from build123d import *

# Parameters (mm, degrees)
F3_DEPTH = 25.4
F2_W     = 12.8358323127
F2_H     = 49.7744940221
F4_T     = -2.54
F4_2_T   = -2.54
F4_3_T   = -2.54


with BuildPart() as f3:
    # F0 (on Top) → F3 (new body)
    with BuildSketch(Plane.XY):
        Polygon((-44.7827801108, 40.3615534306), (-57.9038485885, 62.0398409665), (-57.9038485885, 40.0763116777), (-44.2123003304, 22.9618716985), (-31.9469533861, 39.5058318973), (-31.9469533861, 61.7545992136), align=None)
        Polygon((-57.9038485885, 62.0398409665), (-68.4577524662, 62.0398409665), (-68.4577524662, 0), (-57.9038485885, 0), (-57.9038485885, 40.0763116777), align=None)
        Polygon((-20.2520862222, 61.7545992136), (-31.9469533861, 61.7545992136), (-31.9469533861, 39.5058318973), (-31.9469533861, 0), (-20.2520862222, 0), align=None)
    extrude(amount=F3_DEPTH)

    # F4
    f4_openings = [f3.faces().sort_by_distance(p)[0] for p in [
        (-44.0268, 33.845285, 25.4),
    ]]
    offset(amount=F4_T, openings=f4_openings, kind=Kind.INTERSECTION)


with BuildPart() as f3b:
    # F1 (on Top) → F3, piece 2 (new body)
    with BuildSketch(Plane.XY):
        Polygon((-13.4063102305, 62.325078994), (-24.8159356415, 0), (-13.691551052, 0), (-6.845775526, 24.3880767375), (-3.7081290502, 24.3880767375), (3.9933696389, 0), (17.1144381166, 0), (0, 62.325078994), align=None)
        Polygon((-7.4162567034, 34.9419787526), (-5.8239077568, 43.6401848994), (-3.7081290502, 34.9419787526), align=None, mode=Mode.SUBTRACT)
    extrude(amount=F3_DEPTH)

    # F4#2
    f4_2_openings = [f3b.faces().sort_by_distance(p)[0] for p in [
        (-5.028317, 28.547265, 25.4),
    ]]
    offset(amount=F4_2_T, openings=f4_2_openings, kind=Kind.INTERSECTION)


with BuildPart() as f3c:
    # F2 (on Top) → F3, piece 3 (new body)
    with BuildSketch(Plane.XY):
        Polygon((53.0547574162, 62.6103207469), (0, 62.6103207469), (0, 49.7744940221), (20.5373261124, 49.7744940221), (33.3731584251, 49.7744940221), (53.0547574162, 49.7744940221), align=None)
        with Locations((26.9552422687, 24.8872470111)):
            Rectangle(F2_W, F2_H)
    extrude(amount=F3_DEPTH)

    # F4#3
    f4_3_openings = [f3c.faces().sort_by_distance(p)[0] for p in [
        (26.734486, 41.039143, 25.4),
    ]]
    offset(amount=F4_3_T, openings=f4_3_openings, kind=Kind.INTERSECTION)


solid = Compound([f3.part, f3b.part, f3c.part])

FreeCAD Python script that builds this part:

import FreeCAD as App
import Part
import Sketcher
from FreeCAD import Vector
Q = App.Units.Quantity


def faces_at(feature, points):
    """Names of the faces that lie closest to the given points."""
    faces = feature.Shape.Faces
    near = lambda p: min(range(len(faces)), key=lambda i: faces[i].distToShape(Part.Vertex(*p))[0])
    return sorted({f"Face{near(p) + 1}" for p in points})

doc = App.newDocument("Part")
body = doc.addObject("PartDesign::Body", "Body")

# Sketch on XY plane
sketch1 = doc.addObject("Sketcher::SketchObject", "Sketch")
body.addObject(sketch1)
sketch1.AttachmentSupport = (doc.XY_Plane, [""])
sketch1.MapMode = "FlatFace"
sketch1.addGeometry(Part.LineSegment(Vector(-44.78278, 40.361553, 0), Vector(-57.903849, 62.039841, 0)), False)
sketch1.addGeometry(Part.LineSegment(Vector(-57.903849, 62.039841, 0), Vector(-68.457752, 62.039841, 0)), False)
sketch1.addGeometry(Part.LineSegment(Vector(-68.457752, 62.039841, 0), Vector(-68.457752, 0, 0)), False)
sketch1.addGeometry(Part.LineSegment(Vector(-68.457752, 0, 0), Vector(-57.903849, 0, 0)), False)
sketch1.addGeometry(Part.LineSegment(Vector(-57.903849, 0, 0), Vector(-57.903849, 40.076312, 0)), False)
sketch1.addGeometry(Part.LineSegment(Vector(-57.903849, 40.076312, 0), Vector(-44.2123, 22.961872, 0)), False)
sketch1.addGeometry(Part.LineSegment(Vector(-44.2123, 22.961872, 0), Vector(-31.946953, 39.505832, 0)), False)
sketch1.addGeometry(Part.LineSegment(Vector(-31.946953, 39.505832, 0), Vector(-31.946953, 0, 0)), False)
sketch1.addGeometry(Part.LineSegment(Vector(-31.946953, 0, 0), Vector(-20.252086, 0, 0)), False)
sketch1.addGeometry(Part.LineSegment(Vector(-20.252086, 0, 0), Vector(-20.252086, 61.754599, 0)), False)
sketch1.addGeometry(Part.LineSegment(Vector(-20.252086, 61.754599, 0), Vector(-31.946953, 61.754599, 0)), False)
sketch1.addGeometry(Part.LineSegment(Vector(-31.946953, 61.754599, 0), Vector(-44.78278, 40.361553, 0)), False)
sketch1.addConstraint(Sketcher.Constraint("Coincident", 0, 2, 1, 1))
sketch1.addConstraint(Sketcher.Constraint("Coincident", 1, 2, 2, 1))
sketch1.addConstraint(Sketcher.Constraint("Coincident", 2, 2, 3, 1))
sketch1.addConstraint(Sketcher.Constraint("Coincident", 3, 2, 4, 1))
sketch1.addConstraint(Sketcher.Constraint("Coincident", 4, 2, 5, 1))
sketch1.addConstraint(Sketcher.Constraint("Coincident", 5, 2, 6, 1))
sketch1.addConstraint(Sketcher.Constraint("Coincident", 6, 2, 7, 1))
sketch1.addConstraint(Sketcher.Constraint("Coincident", 7, 2, 8, 1))
sketch1.addConstraint(Sketcher.Constraint("Coincident", 8, 2, 9, 1))
sketch1.addConstraint(Sketcher.Constraint("Coincident", 9, 2, 10, 1))
sketch1.addConstraint(Sketcher.Constraint("Coincident", 10, 2, 11, 1))
sketch1.addConstraint(Sketcher.Constraint("Coincident", 11, 2, 0, 1))
sketch1.addConstraint(Sketcher.Constraint("Horizontal", 1))
sketch1.addConstraint(Sketcher.Constraint("Vertical", 2))
sketch1.addConstraint(Sketcher.Constraint("Horizontal", 3))
sketch1.addConstraint(Sketcher.Constraint("Vertical", 4))
sketch1.addConstraint(Sketcher.Constraint("Vertical", 7))
sketch1.addConstraint(Sketcher.Constraint("Horizontal", 8))
sketch1.addConstraint(Sketcher.Constraint("Vertical", 9))
sketch1.addConstraint(Sketcher.Constraint("Horizontal", 10))
sketch1.addConstraint(Sketcher.Constraint("PointOnObject", 2, 2, -1))
sketch1.addConstraint(Sketcher.Constraint("PointOnObject", 7, 2, -1))
sketch1.addConstraint(Sketcher.Constraint("Vertical", 0, 2, 3, 2))
sketch1.addConstraint(Sketcher.Constraint("Vertical", 7, 2, 10, 2))
sketch1.addConstraint(Sketcher.Constraint("DistanceY", 9, 1, 9, 2, 61.754599))
sketch1.addConstraint(Sketcher.Constraint("Distance", 0, 25.339901))
sketch1.addConstraint(Sketcher.Constraint("DistanceY", 2, 2, 2, 1, 62.039841))
sketch1.addConstraint(Sketcher.Constraint("DistanceY", 4, 1, 4, 2, 40.076312))
sketch1.addConstraint(Sketcher.Constraint("DistanceY", 7, 2, 7, 1, 39.505832))
sketch1.addConstraint(Sketcher.Constraint("DistanceX", 5, 2, -1, 1, 44.2123))
sketch1.addConstraint(Sketcher.Constraint("DistanceX", 1, 2, 6, 2, 36.510799))
sketch1.addConstraint(Sketcher.Constraint("DistanceX", 1, 2, 1, 1, 10.553904))
sketch1.addConstraint(Sketcher.Constraint("DistanceX", 8, 1, 8, 2, 11.694867))
sketch1.addConstraint(Sketcher.Constraint("DistanceX", 0, 2, -1, 1, 57.903849))
sketch1.addConstraint(Sketcher.Constraint("DistanceY", -1, 1, 5, 2, 22.961872))
sketch1.addConstraint(Sketcher.Constraint("DistanceX", 11, 2, -1, 1, 44.78278))
pad1 = doc.addObject("PartDesign::Pad", "Pad")
body.addObject(pad1)
pad1.Profile = sketch1
pad1.Length = Q("1 in")
doc.recompute()

thickness = doc.addObject("PartDesign::Thickness", "Thickness")
body.addObject(thickness)
thickness.Base = (pad1, faces_at(pad1, [(-44.355, 31.02, 25.4)]))
thickness.Value = Q("0.1 in")
thickness.Reversed = True
thickness.Join = "Intersection"
body2 = doc.addObject("PartDesign::Body", "Body001")

# Sketch on XY plane
sketch2 = doc.addObject("Sketcher::SketchObject", "Sketch001")
body2.addObject(sketch2)
sketch2.AttachmentSupport = (doc.getObject("XY_Plane001"), [""])
sketch2.MapMode = "FlatFace"
sketch2.addGeometry(Part.LineSegment(Vector(-13.40631, 62.325079, 0), Vector(-24.815936, 0, 0)), False)
sketch2.addGeometry(Part.LineSegment(Vector(-24.815936, 0, 0), Vector(-13.691551, 0, 0)), False)
sketch2.addGeometry(Part.LineSegment(Vector(-13.691551, 0, 0), Vector(-6.845776, 24.388077, 0)), False)
sketch2.addGeometry(Part.LineSegment(Vector(-6.845776, 24.388077, 0), Vector(-3.708129, 24.388077, 0)), False)
sketch2.addGeometry(Part.LineSegment(Vector(-3.708129, 24.388077, 0), Vector(3.99337, 0, 0)), False)
sketch2.addGeometry(Part.LineSegment(Vector(3.99337, 0, 0), Vector(17.114438, 0, 0)), False)
sketch2.addGeometry(Part.LineSegment(Vector(17.114438, 0, 0), Vector(0, 62.325079, 0)), False)
sketch2.addGeometry(Part.LineSegment(Vector(0, 62.325079, 0), Vector(-13.40631, 62.325079, 0)), False)
sketch2.addGeometry(Part.LineSegment(Vector(-3.708129, 34.941979, 0), Vector(-7.416257, 34.941979, 0)), False)
sketch2.addGeometry(Part.LineSegment(Vector(-7.416257, 34.941979, 0), Vector(-5.823908, 43.640185, 0)), False)
sketch2.addGeometry(Part.LineSegment(Vector(-5.823908, 43.640185, 0), Vector(-3.708129, 34.941979, 0)), False)
sketch2.addConstraint(Sketcher.Constraint("Coincident", 0, 2, 1, 1))
sketch2.addConstraint(Sketcher.Constraint("Coincident", 1, 2, 2, 1))
sketch2.addConstraint(Sketcher.Constraint("Coincident", 2, 2, 3, 1))
sketch2.addConstraint(Sketcher.Constraint("Coincident", 3, 2, 4, 1))
sketch2.addConstraint(Sketcher.Constraint("Coincident", 4, 2, 5, 1))
sketch2.addConstraint(Sketcher.Constraint("Coincident", 5, 2, 6, 1))
sketch2.addConstraint(Sketcher.Constraint("Coincident", 6, 2, 7, 1))
sketch2.addConstraint(Sketcher.Constraint("Coincident", 7, 2, 0, 1))
sketch2.addConstraint(Sketcher.Constraint("Coincident", 8, 2, 9, 1))
sketch2.addConstraint(Sketcher.Constraint("Coincident", 9, 2, 10, 1))
sketch2.addConstraint(Sketcher.Constraint("Coincident", 10, 2, 8, 1))
sketch2.addConstraint(Sketcher.Constraint("Horizontal", 1))
sketch2.addConstraint(Sketcher.Constraint("Horizontal", 3))
sketch2.addConstraint(Sketcher.Constraint("Horizontal", 5))
sketch2.addConstraint(Sketcher.Constraint("Horizontal", 7))
sketch2.addConstraint(Sketcher.Constraint("Horizontal", 8))
sketch2.addConstraint(Sketcher.Constraint("PointOnObject", 0, 2, -1))
sketch2.addConstraint(Sketcher.Constraint("PointOnObject", 4, 2, -1))
sketch2.addConstraint(Sketcher.Constraint("PointOnObject", 6, 2, -2))
sketch2.addConstraint(Sketcher.Constraint("Parallel", 0, 9))
sketch2.addConstraint(Sketcher.Constraint("Vertical", 3, 2, 10, 2))
sketch2.addConstraint(Sketcher.Constraint("DistanceX", 5, 1, 5, 2, 13.121068))
sketch2.addConstraint(Sketcher.Constraint("DistanceX", 7, 2, 7, 1, 13.40631))
sketch2.addConstraint(Sketcher.Constraint("DistanceX", 3, 2, 4, 2, 7.701499))
sketch2.addConstraint(Sketcher.Constraint("DistanceY", 8, 2, 7, 2, 27.3831))
sketch2.addConstraint(Sketcher.Constraint("Distance", 0, 63.360832))
sketch2.addConstraint(Sketcher.Constraint("Distance", 2, 25.330672))
sketch2.addConstraint(Sketcher.Constraint("Distance", 4, 25.57521))
sketch2.addConstraint(Sketcher.Constraint("DistanceX", 1, 1, 1, 2, 11.124385))
sketch2.addConstraint(Sketcher.Constraint("DistanceX", 3, 1, 3, 2, 3.137646))
sketch2.addConstraint(Sketcher.Constraint("DistanceX", 8, 2, 8, 1, 3.708128))
sketch2.addConstraint(Sketcher.Constraint("DistanceX", 1, 2, -1, 1, 13.691551))
sketch2.addConstraint(Sketcher.Constraint("DistanceX", 8, 2, 9, 2, 1.592349))
pad2 = doc.addObject("PartDesign::Pad", "Pad001")
body2.addObject(pad2)
pad2.Profile = sketch2
pad2.Length = Q("1 in")
doc.recompute()

thickness2 = doc.addObject("PartDesign::Thickness", "Thickness001")
body2.addObject(thickness2)
thickness2.Base = (pad2, faces_at(pad2, [(-3.851, 31.163, 25.4)]))
thickness2.Value = Q("0.1 in")
thickness2.Reversed = True
thickness2.Join = "Intersection"
body3 = doc.addObject("PartDesign::Body", "Body002")

# Sketch on XY plane
sketch3 = doc.addObject("Sketcher::SketchObject", "Sketch002")
body3.addObject(sketch3)
sketch3.AttachmentSupport = (doc.getObject("XY_Plane002"), [""])
sketch3.MapMode = "FlatFace"
sketch3.addGeometry(Part.LineSegment(Vector(53.054757, 62.610321, 0), Vector(0, 62.610321, 0)), False)
sketch3.addGeometry(Part.LineSegment(Vector(0, 62.610321, 0), Vector(0, 49.774494, 0)), False)
sketch3.addGeometry(Part.LineSegment(Vector(0, 49.774494, 0), Vector(20.537326, 49.774494, 0)), False)
sketch3.addGeometry(Part.LineSegment(Vector(20.537326, 49.774494, 0), Vector(20.537326, 0, 0)), False)
sketch3.addGeometry(Part.LineSegment(Vector(20.537326, 0, 0), Vector(33.373158, 0, 0)), False)
sketch3.addGeometry(Part.LineSegment(Vector(33.373158, 0, 0), Vector(33.373158, 49.774494, 0)), False)
sketch3.addGeometry(Part.LineSegment(Vector(33.373158, 49.774494, 0), Vector(53.054757, 49.774494, 0)), False)
sketch3.addGeometry(Part.LineSegment(Vector(53.054757, 49.774494, 0), Vector(53.054757, 62.610321, 0)), False)
sketch3.addConstraint(Sketcher.Constraint("Coincident", 0, 2, 1, 1))
sketch3.addConstraint(Sketcher.Constraint("Coincident", 1, 2, 2, 1))
sketch3.addConstraint(Sketcher.Constraint("Coincident", 2, 2, 3, 1))
sketch3.addConstraint(Sketcher.Constraint("Coincident", 3, 2, 4, 1))
sketch3.addConstraint(Sketcher.Constraint("Coincident", 4, 2, 5, 1))
sketch3.addConstraint(Sketcher.Constraint("Coincident", 5, 2, 6, 1))
sketch3.addConstraint(Sketcher.Constraint("Coincident", 6, 2, 7, 1))
sketch3.addConstraint(Sketcher.Constraint("Coincident", 7, 2, 0, 1))
sketch3.addConstraint(Sketcher.Constraint("Horizontal", 0))
sketch3.addConstraint(Sketcher.Constraint("Vertical", 1))
sketch3.addConstraint(Sketcher.Constraint("Horizontal", 2))
sketch3.addConstraint(Sketcher.Constraint("Vertical", 3))
sketch3.addConstraint(Sketcher.Constraint("Horizontal", 4))
sketch3.addConstraint(Sketcher.Constraint("Vertical", 5))
sketch3.addConstraint(Sketcher.Constraint("Horizontal", 6))
sketch3.addConstraint(Sketcher.Constraint("Vertical", 7))
sketch3.addConstraint(Sketcher.Constraint("PointOnObject", 0, 2, -2))
sketch3.addConstraint(Sketcher.Constraint("PointOnObject", 3, 2, -1))
sketch3.addConstraint(Sketcher.Constraint("Horizontal", 2, 2, 5, 2))
sketch3.addConstraint(Sketcher.Constraint("DistanceX", 6, 1, 6, 2, 19.681599))
sketch3.addConstraint(Sketcher.Constraint("DistanceX", 0, 2, 0, 1, 53.054757))
sketch3.addConstraint(Sketcher.Constraint("DistanceX", 2, 1, 2, 2, 20.537326))
sketch3.addConstraint(Sketcher.Constraint("DistanceY", 1, 2, 1, 1, 12.835827))
sketch3.addConstraint(Sketcher.Constraint("DistanceY", 3, 2, 3, 1, 49.774494))
pad3 = doc.addObject("PartDesign::Pad", "Pad002")
body3.addObject(pad3)
pad3.Profile = sketch3
pad3.Length = Q("1 in")
doc.recompute()

thickness3 = doc.addObject("PartDesign::Thickness", "Thickness002")
body3.addObject(thickness3)
thickness3.Base = (pad3, faces_at(pad3, [(26.527, 31.305, 25.4)]))
thickness3.Value = Q("0.1 in")
thickness3.Reversed = True
thickness3.Join = "Intersection"

doc.recompute()
